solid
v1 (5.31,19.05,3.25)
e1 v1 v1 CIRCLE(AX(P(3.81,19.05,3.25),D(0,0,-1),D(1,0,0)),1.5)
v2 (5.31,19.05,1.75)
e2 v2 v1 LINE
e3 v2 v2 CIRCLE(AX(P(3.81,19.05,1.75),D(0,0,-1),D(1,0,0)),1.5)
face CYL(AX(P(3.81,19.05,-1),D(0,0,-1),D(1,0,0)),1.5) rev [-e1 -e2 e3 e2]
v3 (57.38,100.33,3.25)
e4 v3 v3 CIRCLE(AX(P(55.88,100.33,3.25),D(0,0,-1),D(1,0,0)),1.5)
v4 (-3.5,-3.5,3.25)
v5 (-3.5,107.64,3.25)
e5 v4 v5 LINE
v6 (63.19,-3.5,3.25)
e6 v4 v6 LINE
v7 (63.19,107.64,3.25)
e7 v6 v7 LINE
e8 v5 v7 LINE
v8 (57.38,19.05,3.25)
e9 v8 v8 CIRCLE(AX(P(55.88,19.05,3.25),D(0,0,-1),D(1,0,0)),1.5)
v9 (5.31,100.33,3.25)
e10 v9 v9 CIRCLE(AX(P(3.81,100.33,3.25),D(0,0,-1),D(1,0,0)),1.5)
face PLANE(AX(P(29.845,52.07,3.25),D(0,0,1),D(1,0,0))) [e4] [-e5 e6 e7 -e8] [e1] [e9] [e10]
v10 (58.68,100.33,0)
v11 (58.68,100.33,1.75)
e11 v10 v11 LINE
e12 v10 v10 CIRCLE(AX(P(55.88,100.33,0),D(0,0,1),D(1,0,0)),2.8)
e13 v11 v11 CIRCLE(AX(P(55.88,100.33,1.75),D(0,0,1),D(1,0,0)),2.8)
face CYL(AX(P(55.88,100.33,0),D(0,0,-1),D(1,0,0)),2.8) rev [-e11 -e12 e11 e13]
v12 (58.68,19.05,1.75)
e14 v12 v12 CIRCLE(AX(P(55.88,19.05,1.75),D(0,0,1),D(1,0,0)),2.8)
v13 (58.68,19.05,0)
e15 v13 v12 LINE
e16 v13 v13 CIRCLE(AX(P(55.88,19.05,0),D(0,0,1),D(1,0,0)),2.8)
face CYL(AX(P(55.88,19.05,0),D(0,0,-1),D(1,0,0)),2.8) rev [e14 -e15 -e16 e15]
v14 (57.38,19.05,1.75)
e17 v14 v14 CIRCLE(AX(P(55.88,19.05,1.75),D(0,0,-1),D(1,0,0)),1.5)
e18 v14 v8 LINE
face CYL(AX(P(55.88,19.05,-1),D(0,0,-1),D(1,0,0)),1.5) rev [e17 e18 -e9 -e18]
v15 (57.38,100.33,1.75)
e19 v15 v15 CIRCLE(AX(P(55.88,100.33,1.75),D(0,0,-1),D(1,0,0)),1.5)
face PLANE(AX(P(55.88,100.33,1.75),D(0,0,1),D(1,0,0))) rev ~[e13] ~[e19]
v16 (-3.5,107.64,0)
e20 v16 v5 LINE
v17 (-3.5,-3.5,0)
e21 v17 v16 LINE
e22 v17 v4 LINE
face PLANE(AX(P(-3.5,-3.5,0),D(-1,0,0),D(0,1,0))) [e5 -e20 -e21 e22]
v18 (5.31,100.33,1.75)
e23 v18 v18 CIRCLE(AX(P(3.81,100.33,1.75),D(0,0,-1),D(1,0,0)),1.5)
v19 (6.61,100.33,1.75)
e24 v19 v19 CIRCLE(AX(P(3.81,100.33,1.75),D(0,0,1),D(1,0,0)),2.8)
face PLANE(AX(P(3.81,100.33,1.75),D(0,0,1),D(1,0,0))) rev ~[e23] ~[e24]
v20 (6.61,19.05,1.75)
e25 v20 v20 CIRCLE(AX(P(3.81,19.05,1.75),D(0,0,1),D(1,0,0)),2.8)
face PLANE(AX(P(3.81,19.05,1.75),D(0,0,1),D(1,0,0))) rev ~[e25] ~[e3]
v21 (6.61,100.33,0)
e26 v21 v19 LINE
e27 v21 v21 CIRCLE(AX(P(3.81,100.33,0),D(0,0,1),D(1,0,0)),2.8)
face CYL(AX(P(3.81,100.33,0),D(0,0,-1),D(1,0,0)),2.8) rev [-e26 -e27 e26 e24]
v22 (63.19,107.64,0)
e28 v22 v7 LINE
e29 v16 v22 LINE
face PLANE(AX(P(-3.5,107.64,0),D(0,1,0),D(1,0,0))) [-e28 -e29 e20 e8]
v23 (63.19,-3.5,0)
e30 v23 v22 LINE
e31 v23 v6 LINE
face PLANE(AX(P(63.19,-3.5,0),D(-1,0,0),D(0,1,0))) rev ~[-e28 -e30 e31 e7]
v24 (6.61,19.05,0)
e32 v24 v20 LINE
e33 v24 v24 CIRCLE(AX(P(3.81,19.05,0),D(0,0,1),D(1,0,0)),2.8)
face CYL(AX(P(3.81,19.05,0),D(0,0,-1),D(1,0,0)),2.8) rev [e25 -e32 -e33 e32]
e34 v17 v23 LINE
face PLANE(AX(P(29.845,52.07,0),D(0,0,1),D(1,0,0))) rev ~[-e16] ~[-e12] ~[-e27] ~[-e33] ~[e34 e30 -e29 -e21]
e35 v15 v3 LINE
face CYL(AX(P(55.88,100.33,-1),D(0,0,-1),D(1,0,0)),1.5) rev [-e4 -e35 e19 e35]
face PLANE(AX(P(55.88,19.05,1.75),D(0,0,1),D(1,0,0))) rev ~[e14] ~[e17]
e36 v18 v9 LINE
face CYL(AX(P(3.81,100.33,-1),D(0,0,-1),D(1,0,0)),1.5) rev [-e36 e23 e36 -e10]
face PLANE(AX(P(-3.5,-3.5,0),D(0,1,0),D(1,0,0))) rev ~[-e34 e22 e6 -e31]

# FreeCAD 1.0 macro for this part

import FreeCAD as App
import Part
import Sketcher
Q = App.Units.Quantity


def add_polygon(sketch, points):
    """Adds a closed chain of lines whose ends are joined by coincident constraints."""
    first, n = sketch.GeometryCount, len(points)
    for a, b in zip(points, points[1:] + points[:1]):
        sketch.addGeometry(Part.LineSegment(App.Vector(*a, 0), App.Vector(*b, 0)), False)
    for i in range(n):
        sketch.addConstraint(Sketcher.Constraint("Coincident", first + i, 2, first + (i + 1) % n, 1))

doc = App.newDocument("Part")
params = doc.addObject("Spreadsheet::Sheet", "Params")
for row, (alias, value) in enumerate([
    ("sketch1_diameter", "5.6 mm"),
    ("pad1_length", "1.75 mm"),
    ("sketch2_diameter", "5.6 mm"),
    ("pad2_length", "1.75 mm"),
    ("sketch3_diameter", "5.6 mm"),
    ("pad3_length", "1.75 mm"),
    ("sketch4_diameter", "5.6 mm"),
    ("pad4_length", "1.75 mm"),
    ("sketch5_diameter", "3 mm"),
    ("pad5_length", "10 mm"),
    ("sketch6_diameter", "3 mm"),
    ("pad6_length", "10 mm"),
    ("sketch7_diameter", "3 mm"),
    ("pad7_length", "10 mm"),
    ("sketch8_diameter", "3 mm"),
    ("pad8_length", "10 mm"),
    ("sketch9_width", "66.69 mm"),
    ("sketch9_height", "111.14 mm"),
    ("pad9_length", "3.25 mm"),
], start=1):
    params.set(f"A{row}", alias)
    params.set(f"B{row}", "=" + value)
    params.setAlias(f"B{row}", alias)

body = doc.addObject("PartDesign::Body", "Body")

sketch1 = doc.addObject("Sketcher::SketchObject", "Sketch")
body.addObject(sketch1)
sketch1.AttachmentSupport = (doc.XY_Plane, [""])
sketch1.MapMode = "FlatFace"
sketch1.addGeometry(Part.Circle(App.Vector(55.9, 100.3, 0), App.Vector(0, 0, 1), 2.8), False)
sketch1.addConstraint([
    Sketcher.Constraint("Diameter", 0, Q("5.6 mm")),
    Sketcher.Constraint("DistanceX", -1, 1, 0, 3, Q("55.88 mm")),
    Sketcher.Constraint("DistanceY", -1, 1, 0, 3, Q("100.33 mm")),
])
sketch1.setExpression("Constraints[0]", "Params.sketch1_diameter")
pad1 = doc.addObject("PartDesign::Pad", "Pad")
body.addObject(pad1)
pad1.Profile = sketch1
pad1.setExpression("Length", "Params.pad1_length")
body2 = doc.addObject("PartDesign::Body", "Body001")

sketch2 = doc.addObject("Sketcher::SketchObject", "Sketch001")
body2.addObject(sketch2)
sketch2.AttachmentSupport = (doc.getObject("XY_Plane001"), [""])
sketch2.MapMode = "FlatFace"
sketch2.addGeometry(Part.Circle(App.Vector(3.8, 100.3, 0), App.Vector(0, 0, 1), 2.8), False)
sketch2.addConstraint([
    Sketcher.Constraint("Diameter", 0, Q("5.6 mm")),
    Sketcher.Constraint("DistanceX", -1, 1, 0, 3, Q("3.81 mm")),
    Sketcher.Constraint("DistanceY", -1, 1, 0, 3, Q("100.33 mm")),
])
sketch2.setExpression("Constraints[0]", "Params.sketch2_diameter")
pad2 = doc.addObject("PartDesign::Pad", "Pad001")
body2.addObject(pad2)
pad2.Profile = sketch2
pad2.setExpression("Length", "Params.pad2_length")
body3 = doc.addObject("PartDesign::Body", "Body002")

sketch3 = doc.addObject("Sketcher::SketchObject", "Sketch002")
body3.addObject(sketch3)
sketch3.AttachmentSupport = (doc.getObject("XY_Plane002"), [""])
sketch3.MapMode = "FlatFace"
sketch3.addGeometry(Part.Circle(App.Vector(55.9, 19.1, 0), App.Vector(0, 0, 1), 2.8), False)
sketch3.addConstraint([
    Sketcher.Constraint("Diameter", 0, Q("5.6 mm")),
    Sketcher.Constraint("DistanceX", -1, 1, 0, 3, Q("55.88 mm")),
    Sketcher.Constraint("DistanceY", -1, 1, 0, 3, Q("19.05 mm")),
])
sketch3.setExpression("Constraints[0]", "Params.sketch3_diameter")
pad3 = doc.addObject("PartDesign::Pad", "Pad002")
body3.addObject(pad3)
pad3.Profile = sketch3
pad3.setExpression("Length", "Params.pad3_length")
body4 = doc.addObject("PartDesign::Body", "Body003")

sketch4 = doc.addObject("Sketcher::SketchObject", "Sketch003")
body4.addObject(sketch4)
sketch4.AttachmentSupport = (doc.getObject("XY_Plane003"), [""])
sketch4.MapMode = "FlatFace"
sketch4.addGeometry(Part.Circle(App.Vector(3.8, 19.1, 0), App.Vector(0, 0, 1), 2.8), False)
sketch4.addConstraint([
    Sketcher.Constraint("Diameter", 0, Q("5.6 mm")),
    Sketcher.Constraint("DistanceX", -1, 1, 0, 3, Q("3.81 mm")),
    Sketcher.Constraint("DistanceY", -1, 1, 0, 3, Q("19.05 mm")),
])
sketch4.setExpression("Constraints[0]", "Params.sketch4_diameter")
pad4 = doc.addObject("PartDesign::Pad", "Pad003")
body4.addObject(pad4)
pad4.Profile = sketch4
pad4.setExpression("Length", "Params.pad4_length")
body5 = doc.addObject("PartDesign::Body", "Body004")

sketch5 = doc.addObject("Sketcher::SketchObject", "Sketch004")
body5.addObject(sketch5)
sketch5.AttachmentSupport = (doc.getObject("XY_Plane004"), [""])
sketch5.MapMode = "FlatFace"
sketch5.AttachmentOffset = App.Placement(App.Vector(0, 0, -1), App.Rotation())
sketch5.addGeometry(Part.Circle(App.Vector(55.9, 100.3, 0), App.Vector(0, 0, 1), 1.5), False)
sketch5.addConstraint([
    Sketcher.Constraint("Diameter", 0, Q("3 mm")),
    Sketcher.Constraint("DistanceX", -1, 1, 0, 3, Q("55.88 mm")),
    Sketcher.Constraint("DistanceY", -1, 1, 0, 3, Q("100.33 mm")),
])
sketch5.setExpression("Constraints[0]", "Params.sketch5_diameter")
pad5 = doc.addObject("PartDesign::Pad", "Pad004")
body5.addObject(pad5)
pad5.Profile = sketch5
pad5.setExpression("Length", "Params.pad5_length")
body6 = doc.addObject("PartDesign::Body", "Body005")

sketch6 = doc.addObject("Sketcher::SketchObject", "Sketch005")
body6.addObject(sketch6)
sketch6.AttachmentSupport = (doc.getObject("XY_Plane005"), [""])
sketch6.MapMode = "FlatFace"
sketch6.AttachmentOffset = App.Placement(App.Vector(0, 0, -1), App.Rotation())
sketch6.addGeometry(Part.Circle(App.Vector(3.8, 100.3, 0), App.Vector(0, 0, 1), 1.5), False)
sketch6.addConstraint([
    Sketcher.Constraint("Diameter", 0, Q("3 mm")),
    Sketcher.Constraint("DistanceX", -1, 1, 0, 3, Q("3.81 mm")),
    Sketcher.Constraint("DistanceY", -1, 1, 0, 3, Q("100.33 mm")),
])
sketch6.setExpression("Constraints[0]", "Params.sketch6_diameter")
pad6 = doc.addObject("PartDesign::Pad", "Pad005")
body6.addObject(pad6)
pad6.Profile = sketch6
pad6.setExpression("Length", "Params.pad6_length")
body7 = doc.addObject("PartDesign::Body", "Body006")

sketch7 = doc.addObject("Sketcher::SketchObject", "Sketch006")
body7.addObject(sketch7)
sketch7.AttachmentSupport = (doc.getObject("XY_Plane006"), [""])
sketch7.MapMode = "FlatFace"
sketch7.AttachmentOffset = App.Placement(App.Vector(0, 0, -1), App.Rotation())
sketch7.addGeometry(Part.Circle(App.Vector(55.9, 19.1, 0), App.Vector(0, 0, 1), 1.5), False)
sketch7.addConstraint([
    Sketcher.Constraint("Diameter", 0, Q("3 mm")),
    Sketcher.Constraint("DistanceX", -1, 1, 0, 3, Q("55.88 mm")),
    Sketcher.Constraint("DistanceY", -1, 1, 0, 3, Q("19.05 mm")),
])
sketch7.setExpression("Constraints[0]", "Params.sketch7_diameter")
pad7 = doc.addObject("PartDesign::Pad", "Pad006")
body7.addObject(pad7)
pad7.Profile = sketch7
pad7.setExpression("Length", "Params.pad7_length")
body8 = doc.addObject("PartDesign::Body", "Body007")

sketch8 = doc.addObject("Sketcher::SketchObject", "Sketch007")
body8.addObject(sketch8)
sketch8.AttachmentSupport = (doc.getObject("XY_Plane007"), [""])
sketch8.MapMode = "FlatFace"
sketch8.AttachmentOffset = App.Placement(App.Vector(0, 0, -1), App.Rotation())
sketch8.addGeometry(Part.Circle(App.Vector(3.8, 19.1, 0), App.Vector(0, 0, 1), 1.5), False)
sketch8.addConstraint([
    Sketcher.Constraint("Diameter", 0, Q("3 mm")),
    Sketcher.Constraint("DistanceX", -1, 1, 0, 3, Q("3.81 mm")),
    Sketcher.Constraint("DistanceY", -1, 1, 0, 3, Q("19.05 mm")),
])
sketch8.setExpression("Constraints[0]", "Params.sketch8_diameter")
pad8 = doc.addObject("PartDesign::Pad", "Pad007")
body8.addObject(pad8)
pad8.Profile = sketch8
pad8.setExpression("Length", "Params.pad8_length")
body9 = doc.addObject("PartDesign::Body", "Body008")

sketch9 = doc.addObject("Sketcher::SketchObject", "Sketch008")
body9.addObject(sketch9)
sketch9.AttachmentSupport = (doc.getObject("XY_Plane008"), [""])
sketch9.MapMode = "FlatFace"
add_polygon(sketch9, [(-4, 108), (-4, -4), (63, -4), (63, 108)])
sketch9.addConstraint([
    Sketcher.Constraint("Vertical", 0),
    Sketcher.Constraint("Horizontal", 1),
    Sketcher.Constraint("Vertical", 2),
    Sketcher.Constraint("Horizontal", 3),
    Sketcher.Constraint("DistanceX", 1, 1, 1, 2, Q("66.69 mm")),
    Sketcher.Constraint("DistanceY", 0, 2, 0, 1, Q("111.14 mm")),
    Sketcher.Constraint("DistanceX", 0, 2, -1, 1, Q("3.5 mm")),
    Sketcher.Constraint("DistanceY", 0, 2, -1, 1, Q("3.5 mm")),
])
sketch9.setExpression("Constraints[8]", "Params.sketch9_width")
sketch9.setExpression("Constraints[9]", "Params.sketch9_height")
pad9 = doc.addObject("PartDesign::Pad", "Pad008")
body9.addObject(pad9)
pad9.Profile = sketch9
pad9.setExpression("Length", "Params.pad9_length")
doc.recompute()

boolean = doc.addObject("PartDesign::Boolean", "Boolean")
body9.addObject(boolean)
boolean.Type = "Cut"
boolean.addObjects([body8])
doc.recompute()

boolean2 = doc.addObject("PartDesign::Boolean", "Boolean001")
body9.addObject(boolean2)
boolean2.Type = "Cut"
boolean2.addObjects([body7])
doc.recompute()

boolean3 = doc.addObject("PartDesign::Boolean", "Boolean002")
body9.addObject(boolean3)
boolean3.Type = "Cut"
boolean3.addObjects([body6])
doc.recompute()

boolean4 = doc.addObject("PartDesign::Boolean", "Boolean003")
body9.addObject(boolean4)
boolean4.Type = "Cut"
boolean4.addObjects([body5])
doc.recompute()

boolean5 = doc.addObject("PartDesign::Boolean", "Boolean004")
body9.addObject(boolean5)
boolean5.Type = "Cut"
boolean5.addObjects([body4])
doc.recompute()

boolean6 = doc.addObject("PartDesign::Boolean", "Boolean005")
body9.addObject(boolean6)
boolean6.Type = "Cut"
boolean6.addObjects([body3])
doc.recompute()

boolean7 = doc.addObject("PartDesign::Boolean", "Boolean006")
body9.addObject(boolean7)
boolean7.Type = "Cut"
boolean7.addObjects([body2])
doc.recompute()

boolean8 = doc.addObject("PartDesign::Boolean", "Boolean007")
body9.addObject(boolean8)
boolean8.Type = "Cut"
boolean8.addObjects([body])

doc.recompute()
